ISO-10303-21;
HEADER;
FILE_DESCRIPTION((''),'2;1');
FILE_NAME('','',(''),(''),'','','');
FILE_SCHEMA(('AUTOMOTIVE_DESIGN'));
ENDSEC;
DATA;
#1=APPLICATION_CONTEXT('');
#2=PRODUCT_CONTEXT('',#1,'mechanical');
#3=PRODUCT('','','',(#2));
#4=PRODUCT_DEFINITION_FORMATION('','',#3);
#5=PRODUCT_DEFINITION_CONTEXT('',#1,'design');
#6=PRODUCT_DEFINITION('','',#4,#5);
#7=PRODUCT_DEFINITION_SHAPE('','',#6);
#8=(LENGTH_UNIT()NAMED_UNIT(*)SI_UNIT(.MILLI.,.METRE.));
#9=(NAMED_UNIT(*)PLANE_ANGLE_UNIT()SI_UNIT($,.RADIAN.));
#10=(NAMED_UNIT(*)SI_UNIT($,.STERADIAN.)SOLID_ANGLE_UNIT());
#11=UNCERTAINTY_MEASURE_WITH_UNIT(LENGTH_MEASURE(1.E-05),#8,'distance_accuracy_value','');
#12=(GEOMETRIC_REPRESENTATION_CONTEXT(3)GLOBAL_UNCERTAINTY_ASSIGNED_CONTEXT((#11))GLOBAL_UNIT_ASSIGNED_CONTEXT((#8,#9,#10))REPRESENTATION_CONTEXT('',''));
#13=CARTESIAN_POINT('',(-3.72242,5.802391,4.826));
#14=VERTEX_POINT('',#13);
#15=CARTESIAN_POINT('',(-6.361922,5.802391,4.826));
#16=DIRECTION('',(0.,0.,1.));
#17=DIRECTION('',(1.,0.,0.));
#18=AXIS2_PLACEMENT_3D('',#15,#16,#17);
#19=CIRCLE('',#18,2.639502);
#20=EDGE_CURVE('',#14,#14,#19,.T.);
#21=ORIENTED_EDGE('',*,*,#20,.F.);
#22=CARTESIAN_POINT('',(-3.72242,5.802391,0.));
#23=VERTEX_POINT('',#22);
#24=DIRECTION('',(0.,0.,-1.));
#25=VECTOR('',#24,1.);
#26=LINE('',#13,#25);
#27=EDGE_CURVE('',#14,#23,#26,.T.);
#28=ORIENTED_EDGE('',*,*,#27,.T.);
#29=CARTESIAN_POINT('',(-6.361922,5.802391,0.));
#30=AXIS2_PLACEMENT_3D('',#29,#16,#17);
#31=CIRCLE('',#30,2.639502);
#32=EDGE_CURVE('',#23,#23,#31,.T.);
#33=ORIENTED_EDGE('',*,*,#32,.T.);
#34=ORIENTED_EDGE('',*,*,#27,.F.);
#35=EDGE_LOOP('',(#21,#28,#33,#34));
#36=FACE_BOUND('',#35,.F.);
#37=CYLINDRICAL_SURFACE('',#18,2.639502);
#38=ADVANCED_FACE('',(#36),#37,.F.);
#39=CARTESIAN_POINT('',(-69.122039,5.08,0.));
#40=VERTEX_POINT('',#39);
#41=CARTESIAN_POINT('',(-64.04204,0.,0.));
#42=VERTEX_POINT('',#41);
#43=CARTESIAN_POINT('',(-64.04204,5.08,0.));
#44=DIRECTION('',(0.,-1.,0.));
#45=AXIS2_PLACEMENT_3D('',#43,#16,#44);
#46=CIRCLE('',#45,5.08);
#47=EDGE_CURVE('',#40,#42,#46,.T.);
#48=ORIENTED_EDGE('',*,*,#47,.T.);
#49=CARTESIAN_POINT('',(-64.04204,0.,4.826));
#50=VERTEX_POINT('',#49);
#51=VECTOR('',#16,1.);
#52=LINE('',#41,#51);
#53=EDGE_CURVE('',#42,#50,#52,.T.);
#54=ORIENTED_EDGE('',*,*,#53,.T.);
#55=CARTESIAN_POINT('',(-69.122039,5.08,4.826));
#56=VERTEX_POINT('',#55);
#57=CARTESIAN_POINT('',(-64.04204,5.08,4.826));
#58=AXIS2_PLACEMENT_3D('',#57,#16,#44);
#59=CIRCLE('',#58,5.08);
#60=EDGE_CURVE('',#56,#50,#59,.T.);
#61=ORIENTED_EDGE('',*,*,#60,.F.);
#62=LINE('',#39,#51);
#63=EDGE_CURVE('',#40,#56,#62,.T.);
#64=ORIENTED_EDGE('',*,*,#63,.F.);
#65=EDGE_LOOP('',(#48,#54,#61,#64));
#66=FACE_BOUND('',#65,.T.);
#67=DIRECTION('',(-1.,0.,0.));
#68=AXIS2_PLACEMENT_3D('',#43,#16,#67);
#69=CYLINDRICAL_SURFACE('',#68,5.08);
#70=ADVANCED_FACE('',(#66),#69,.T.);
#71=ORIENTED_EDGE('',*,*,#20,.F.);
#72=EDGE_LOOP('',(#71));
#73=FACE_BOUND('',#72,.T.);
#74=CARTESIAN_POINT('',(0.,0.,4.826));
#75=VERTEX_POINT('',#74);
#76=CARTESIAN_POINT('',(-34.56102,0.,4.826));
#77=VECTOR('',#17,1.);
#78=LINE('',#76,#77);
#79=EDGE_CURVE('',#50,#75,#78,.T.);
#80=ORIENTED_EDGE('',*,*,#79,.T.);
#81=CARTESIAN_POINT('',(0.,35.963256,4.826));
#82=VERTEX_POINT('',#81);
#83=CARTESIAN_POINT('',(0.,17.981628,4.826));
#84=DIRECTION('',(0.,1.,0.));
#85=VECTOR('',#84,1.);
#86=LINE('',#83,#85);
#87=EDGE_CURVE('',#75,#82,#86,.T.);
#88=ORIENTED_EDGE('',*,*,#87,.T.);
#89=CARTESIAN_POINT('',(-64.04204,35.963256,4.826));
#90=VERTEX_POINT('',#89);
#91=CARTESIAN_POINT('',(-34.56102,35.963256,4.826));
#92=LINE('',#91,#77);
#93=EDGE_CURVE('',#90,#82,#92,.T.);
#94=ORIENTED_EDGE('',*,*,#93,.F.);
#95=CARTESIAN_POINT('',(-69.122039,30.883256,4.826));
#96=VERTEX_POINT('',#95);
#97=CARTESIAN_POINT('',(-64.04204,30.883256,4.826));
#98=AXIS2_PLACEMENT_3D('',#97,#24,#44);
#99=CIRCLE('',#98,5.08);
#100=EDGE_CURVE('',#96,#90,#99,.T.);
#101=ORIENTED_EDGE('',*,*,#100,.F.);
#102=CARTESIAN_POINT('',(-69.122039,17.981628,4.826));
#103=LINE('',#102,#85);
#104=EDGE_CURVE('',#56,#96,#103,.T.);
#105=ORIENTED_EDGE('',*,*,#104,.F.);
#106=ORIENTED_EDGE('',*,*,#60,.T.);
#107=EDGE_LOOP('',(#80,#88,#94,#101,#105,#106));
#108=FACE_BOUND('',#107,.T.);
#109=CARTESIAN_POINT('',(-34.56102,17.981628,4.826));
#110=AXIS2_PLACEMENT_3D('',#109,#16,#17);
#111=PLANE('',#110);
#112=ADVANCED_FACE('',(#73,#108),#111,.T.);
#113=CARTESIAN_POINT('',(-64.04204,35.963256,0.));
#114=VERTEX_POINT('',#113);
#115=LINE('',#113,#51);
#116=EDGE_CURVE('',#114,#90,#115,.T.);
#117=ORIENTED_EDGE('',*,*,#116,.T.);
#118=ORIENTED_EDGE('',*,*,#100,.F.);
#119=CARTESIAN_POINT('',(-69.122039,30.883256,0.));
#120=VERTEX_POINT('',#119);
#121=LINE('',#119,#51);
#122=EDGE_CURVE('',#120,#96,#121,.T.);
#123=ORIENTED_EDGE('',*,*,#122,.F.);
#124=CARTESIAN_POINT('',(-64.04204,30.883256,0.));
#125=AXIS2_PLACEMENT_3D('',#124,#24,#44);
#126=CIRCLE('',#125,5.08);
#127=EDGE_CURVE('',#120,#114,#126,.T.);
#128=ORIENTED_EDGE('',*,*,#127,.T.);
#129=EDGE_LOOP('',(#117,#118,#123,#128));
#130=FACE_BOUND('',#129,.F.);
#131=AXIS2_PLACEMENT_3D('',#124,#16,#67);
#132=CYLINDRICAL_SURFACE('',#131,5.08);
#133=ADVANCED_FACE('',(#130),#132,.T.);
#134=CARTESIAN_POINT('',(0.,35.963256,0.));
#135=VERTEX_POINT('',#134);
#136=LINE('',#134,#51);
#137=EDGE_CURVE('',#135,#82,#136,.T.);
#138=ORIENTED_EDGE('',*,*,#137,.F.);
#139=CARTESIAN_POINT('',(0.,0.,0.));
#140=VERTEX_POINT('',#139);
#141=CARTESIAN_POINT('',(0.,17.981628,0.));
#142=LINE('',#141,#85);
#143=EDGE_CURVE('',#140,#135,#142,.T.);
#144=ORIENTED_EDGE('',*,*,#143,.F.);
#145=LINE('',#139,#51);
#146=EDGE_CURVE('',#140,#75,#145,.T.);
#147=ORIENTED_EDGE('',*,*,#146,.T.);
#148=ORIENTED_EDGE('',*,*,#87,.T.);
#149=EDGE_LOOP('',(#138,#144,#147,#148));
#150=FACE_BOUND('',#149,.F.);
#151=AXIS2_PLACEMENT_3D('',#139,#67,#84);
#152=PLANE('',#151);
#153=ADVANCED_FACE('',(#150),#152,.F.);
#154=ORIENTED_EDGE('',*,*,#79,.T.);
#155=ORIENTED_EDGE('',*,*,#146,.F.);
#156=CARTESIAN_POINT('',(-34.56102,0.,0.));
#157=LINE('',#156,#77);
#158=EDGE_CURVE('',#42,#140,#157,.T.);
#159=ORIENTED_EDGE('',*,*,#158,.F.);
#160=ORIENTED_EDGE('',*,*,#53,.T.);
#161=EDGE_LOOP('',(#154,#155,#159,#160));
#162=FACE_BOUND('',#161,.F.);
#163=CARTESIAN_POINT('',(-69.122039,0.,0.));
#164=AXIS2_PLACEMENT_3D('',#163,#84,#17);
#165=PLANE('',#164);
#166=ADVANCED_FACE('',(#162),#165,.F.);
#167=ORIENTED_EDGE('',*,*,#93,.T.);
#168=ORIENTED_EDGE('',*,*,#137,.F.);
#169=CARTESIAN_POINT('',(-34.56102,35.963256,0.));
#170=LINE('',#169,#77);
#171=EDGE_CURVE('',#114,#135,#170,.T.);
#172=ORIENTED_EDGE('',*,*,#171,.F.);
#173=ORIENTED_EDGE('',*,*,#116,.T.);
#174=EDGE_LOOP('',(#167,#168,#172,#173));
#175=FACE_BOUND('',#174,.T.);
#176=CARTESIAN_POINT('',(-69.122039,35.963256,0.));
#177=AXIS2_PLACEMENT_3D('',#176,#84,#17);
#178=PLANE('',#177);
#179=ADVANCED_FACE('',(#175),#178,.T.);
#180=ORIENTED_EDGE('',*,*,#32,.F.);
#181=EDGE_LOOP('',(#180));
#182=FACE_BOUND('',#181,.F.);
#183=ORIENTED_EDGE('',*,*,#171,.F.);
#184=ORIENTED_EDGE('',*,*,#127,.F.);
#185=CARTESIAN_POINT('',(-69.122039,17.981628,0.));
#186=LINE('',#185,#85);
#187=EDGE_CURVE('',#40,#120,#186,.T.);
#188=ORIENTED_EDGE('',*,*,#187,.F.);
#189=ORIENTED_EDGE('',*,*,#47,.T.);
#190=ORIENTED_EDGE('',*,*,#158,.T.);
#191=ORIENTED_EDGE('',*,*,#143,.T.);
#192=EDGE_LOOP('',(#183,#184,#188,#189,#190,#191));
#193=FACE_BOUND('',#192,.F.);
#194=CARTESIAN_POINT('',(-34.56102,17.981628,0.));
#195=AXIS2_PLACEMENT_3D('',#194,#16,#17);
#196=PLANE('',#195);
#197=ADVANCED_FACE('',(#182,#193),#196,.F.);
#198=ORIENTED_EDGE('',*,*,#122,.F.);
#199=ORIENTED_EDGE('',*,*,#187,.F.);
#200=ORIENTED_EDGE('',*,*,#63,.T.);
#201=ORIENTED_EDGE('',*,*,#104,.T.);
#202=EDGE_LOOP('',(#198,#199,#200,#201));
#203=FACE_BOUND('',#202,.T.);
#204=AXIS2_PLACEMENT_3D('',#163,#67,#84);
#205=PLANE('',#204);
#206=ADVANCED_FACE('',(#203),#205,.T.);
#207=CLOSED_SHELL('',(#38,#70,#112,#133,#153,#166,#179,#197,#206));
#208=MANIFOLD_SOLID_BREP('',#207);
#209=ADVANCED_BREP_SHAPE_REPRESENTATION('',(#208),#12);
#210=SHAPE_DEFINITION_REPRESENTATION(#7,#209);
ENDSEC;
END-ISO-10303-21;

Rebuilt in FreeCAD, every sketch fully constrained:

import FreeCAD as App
import Part
import Sketcher

V = App.Vector


def edges_at(feature, points):
    """Names of the edges that pass closest to the given points."""
    edges = feature.Shape.Edges
    near = lambda p: min(range(len(edges)), key=lambda i: edges[i].distToShape(Part.Vertex(*p))[0])
    return sorted({f"Edge{near(p) + 1}" for p in points})

doc = App.newDocument("Part")
params = doc.addObject("Spreadsheet::Sheet", "Params")
for row, (alias, value) in enumerate([
    ("pad1_length", "0.19 in"),
    ("fillet_radius", "0.2 in"),
    ("fillet2_radius", "0.2 in"),
    ("pocket1_length", "1 in"),
], start=1):
    params.set(f"A{row}", alias)
    params.set(f"B{row}", "=" + value)
    params.setAlias(f"B{row}", alias)

body = doc.addObject("PartDesign::Body", "Body")

sketch1 = doc.addObject("Sketcher::SketchObject", "Sketch")
body.addObject(sketch1)
sketch1.AttachmentSupport = (doc.XY_Plane, [""])
sketch1.MapMode = "FlatFace"
sketch1.addGeometry(Part.LineSegment(V(-69.122039, 35.963256, 0), V(-69.122039, 0, 0)), False)
sketch1.addGeometry(Part.LineSegment(V(-69.122039, 0, 0), V(0, 0, 0)), False)
sketch1.addGeometry(Part.LineSegment(V(0, 0, 0), V(0, 35.963256, 0)), False)
sketch1.addGeometry(Part.LineSegment(V(0, 35.963256, 0), V(-69.122039, 35.963256, 0)), False)
sketch1.addConstraint(Sketcher.Constraint("Coincident", 0, 2, 1, 1))
sketch1.addConstraint(Sketcher.Constraint("Coincident", 1, 2, 2, 1))
sketch1.addConstraint(Sketcher.Constraint("Coincident", 2, 2, 3, 1))
sketch1.addConstraint(Sketcher.Constraint("Coincident", 3, 2, 0, 1))
sketch1.addConstraint(Sketcher.Constraint("Vertical", 0))
sketch1.addConstraint(Sketcher.Constraint("Horizontal", 1))
sketch1.addConstraint(Sketcher.Constraint("Vertical", 2))
sketch1.addConstraint(Sketcher.Constraint("Horizontal", 3))
sketch1.addConstraint(Sketcher.Constraint("Coincident", 1, 2, -1, 1))
sketch1.addConstraint(Sketcher.Constraint("DistanceX", 1, 1, 1, 2, 69.122039))
sketch1.addConstraint(Sketcher.Constraint("DistanceY", 0, 2, 0, 1, 35.963256))
pad1 = doc.addObject("PartDesign::Pad", "Pad")
body.addObject(pad1)
pad1.Profile = sketch1
pad1.setExpression("Length", "Params.pad1_length")
doc.recompute()

fillet = doc.addObject("PartDesign::Fillet", "Fillet")
body.addObject(fillet)
fillet.Base = (pad1, edges_at(pad1, [(-69.122, 0, 2.413)]))
fillet.setExpression("Radius", "Params.fillet_radius")
doc.recompute()

fillet2 = doc.addObject("PartDesign::Fillet", "Fillet001")
body.addObject(fillet2)
fillet2.Base = (fillet, edges_at(fillet, [(-69.122, 35.963, 2.413)]))
fillet2.setExpression("Radius", "Params.fillet2_radius")

sketch2 = doc.addObject("Sketcher::SketchObject", "Sketch001")
body.addObject(sketch2)
sketch2.AttachmentSupport = (doc.XY_Plane, [""])
sketch2.MapMode = "FlatFace"
sketch2.AttachmentOffset = App.Placement(V(0, 0, 0.19 * 25.4), App.Rotation())
sketch2.addGeometry(Part.Circle(V(-6.361922, 5.802391, 0), V(0, 0, 1), 2.639502), False)
sketch2.addConstraint(Sketcher.Constraint("Diameter", 0, 5.279004))
sketch2.addConstraint(Sketcher.Constraint("DistanceY", -1, 1, 0, 3, 5.802391))
sketch2.addConstraint(Sketcher.Constraint("DistanceX", 0, 3, -1, 1, 6.361922))
pocket1 = doc.addObject("PartDesign::Pocket", "Pocket")
body.addObject(pocket1)
pocket1.Profile = sketch2
pocket1.setExpression("Length", "Params.pocket1_length")

doc.recompute()
